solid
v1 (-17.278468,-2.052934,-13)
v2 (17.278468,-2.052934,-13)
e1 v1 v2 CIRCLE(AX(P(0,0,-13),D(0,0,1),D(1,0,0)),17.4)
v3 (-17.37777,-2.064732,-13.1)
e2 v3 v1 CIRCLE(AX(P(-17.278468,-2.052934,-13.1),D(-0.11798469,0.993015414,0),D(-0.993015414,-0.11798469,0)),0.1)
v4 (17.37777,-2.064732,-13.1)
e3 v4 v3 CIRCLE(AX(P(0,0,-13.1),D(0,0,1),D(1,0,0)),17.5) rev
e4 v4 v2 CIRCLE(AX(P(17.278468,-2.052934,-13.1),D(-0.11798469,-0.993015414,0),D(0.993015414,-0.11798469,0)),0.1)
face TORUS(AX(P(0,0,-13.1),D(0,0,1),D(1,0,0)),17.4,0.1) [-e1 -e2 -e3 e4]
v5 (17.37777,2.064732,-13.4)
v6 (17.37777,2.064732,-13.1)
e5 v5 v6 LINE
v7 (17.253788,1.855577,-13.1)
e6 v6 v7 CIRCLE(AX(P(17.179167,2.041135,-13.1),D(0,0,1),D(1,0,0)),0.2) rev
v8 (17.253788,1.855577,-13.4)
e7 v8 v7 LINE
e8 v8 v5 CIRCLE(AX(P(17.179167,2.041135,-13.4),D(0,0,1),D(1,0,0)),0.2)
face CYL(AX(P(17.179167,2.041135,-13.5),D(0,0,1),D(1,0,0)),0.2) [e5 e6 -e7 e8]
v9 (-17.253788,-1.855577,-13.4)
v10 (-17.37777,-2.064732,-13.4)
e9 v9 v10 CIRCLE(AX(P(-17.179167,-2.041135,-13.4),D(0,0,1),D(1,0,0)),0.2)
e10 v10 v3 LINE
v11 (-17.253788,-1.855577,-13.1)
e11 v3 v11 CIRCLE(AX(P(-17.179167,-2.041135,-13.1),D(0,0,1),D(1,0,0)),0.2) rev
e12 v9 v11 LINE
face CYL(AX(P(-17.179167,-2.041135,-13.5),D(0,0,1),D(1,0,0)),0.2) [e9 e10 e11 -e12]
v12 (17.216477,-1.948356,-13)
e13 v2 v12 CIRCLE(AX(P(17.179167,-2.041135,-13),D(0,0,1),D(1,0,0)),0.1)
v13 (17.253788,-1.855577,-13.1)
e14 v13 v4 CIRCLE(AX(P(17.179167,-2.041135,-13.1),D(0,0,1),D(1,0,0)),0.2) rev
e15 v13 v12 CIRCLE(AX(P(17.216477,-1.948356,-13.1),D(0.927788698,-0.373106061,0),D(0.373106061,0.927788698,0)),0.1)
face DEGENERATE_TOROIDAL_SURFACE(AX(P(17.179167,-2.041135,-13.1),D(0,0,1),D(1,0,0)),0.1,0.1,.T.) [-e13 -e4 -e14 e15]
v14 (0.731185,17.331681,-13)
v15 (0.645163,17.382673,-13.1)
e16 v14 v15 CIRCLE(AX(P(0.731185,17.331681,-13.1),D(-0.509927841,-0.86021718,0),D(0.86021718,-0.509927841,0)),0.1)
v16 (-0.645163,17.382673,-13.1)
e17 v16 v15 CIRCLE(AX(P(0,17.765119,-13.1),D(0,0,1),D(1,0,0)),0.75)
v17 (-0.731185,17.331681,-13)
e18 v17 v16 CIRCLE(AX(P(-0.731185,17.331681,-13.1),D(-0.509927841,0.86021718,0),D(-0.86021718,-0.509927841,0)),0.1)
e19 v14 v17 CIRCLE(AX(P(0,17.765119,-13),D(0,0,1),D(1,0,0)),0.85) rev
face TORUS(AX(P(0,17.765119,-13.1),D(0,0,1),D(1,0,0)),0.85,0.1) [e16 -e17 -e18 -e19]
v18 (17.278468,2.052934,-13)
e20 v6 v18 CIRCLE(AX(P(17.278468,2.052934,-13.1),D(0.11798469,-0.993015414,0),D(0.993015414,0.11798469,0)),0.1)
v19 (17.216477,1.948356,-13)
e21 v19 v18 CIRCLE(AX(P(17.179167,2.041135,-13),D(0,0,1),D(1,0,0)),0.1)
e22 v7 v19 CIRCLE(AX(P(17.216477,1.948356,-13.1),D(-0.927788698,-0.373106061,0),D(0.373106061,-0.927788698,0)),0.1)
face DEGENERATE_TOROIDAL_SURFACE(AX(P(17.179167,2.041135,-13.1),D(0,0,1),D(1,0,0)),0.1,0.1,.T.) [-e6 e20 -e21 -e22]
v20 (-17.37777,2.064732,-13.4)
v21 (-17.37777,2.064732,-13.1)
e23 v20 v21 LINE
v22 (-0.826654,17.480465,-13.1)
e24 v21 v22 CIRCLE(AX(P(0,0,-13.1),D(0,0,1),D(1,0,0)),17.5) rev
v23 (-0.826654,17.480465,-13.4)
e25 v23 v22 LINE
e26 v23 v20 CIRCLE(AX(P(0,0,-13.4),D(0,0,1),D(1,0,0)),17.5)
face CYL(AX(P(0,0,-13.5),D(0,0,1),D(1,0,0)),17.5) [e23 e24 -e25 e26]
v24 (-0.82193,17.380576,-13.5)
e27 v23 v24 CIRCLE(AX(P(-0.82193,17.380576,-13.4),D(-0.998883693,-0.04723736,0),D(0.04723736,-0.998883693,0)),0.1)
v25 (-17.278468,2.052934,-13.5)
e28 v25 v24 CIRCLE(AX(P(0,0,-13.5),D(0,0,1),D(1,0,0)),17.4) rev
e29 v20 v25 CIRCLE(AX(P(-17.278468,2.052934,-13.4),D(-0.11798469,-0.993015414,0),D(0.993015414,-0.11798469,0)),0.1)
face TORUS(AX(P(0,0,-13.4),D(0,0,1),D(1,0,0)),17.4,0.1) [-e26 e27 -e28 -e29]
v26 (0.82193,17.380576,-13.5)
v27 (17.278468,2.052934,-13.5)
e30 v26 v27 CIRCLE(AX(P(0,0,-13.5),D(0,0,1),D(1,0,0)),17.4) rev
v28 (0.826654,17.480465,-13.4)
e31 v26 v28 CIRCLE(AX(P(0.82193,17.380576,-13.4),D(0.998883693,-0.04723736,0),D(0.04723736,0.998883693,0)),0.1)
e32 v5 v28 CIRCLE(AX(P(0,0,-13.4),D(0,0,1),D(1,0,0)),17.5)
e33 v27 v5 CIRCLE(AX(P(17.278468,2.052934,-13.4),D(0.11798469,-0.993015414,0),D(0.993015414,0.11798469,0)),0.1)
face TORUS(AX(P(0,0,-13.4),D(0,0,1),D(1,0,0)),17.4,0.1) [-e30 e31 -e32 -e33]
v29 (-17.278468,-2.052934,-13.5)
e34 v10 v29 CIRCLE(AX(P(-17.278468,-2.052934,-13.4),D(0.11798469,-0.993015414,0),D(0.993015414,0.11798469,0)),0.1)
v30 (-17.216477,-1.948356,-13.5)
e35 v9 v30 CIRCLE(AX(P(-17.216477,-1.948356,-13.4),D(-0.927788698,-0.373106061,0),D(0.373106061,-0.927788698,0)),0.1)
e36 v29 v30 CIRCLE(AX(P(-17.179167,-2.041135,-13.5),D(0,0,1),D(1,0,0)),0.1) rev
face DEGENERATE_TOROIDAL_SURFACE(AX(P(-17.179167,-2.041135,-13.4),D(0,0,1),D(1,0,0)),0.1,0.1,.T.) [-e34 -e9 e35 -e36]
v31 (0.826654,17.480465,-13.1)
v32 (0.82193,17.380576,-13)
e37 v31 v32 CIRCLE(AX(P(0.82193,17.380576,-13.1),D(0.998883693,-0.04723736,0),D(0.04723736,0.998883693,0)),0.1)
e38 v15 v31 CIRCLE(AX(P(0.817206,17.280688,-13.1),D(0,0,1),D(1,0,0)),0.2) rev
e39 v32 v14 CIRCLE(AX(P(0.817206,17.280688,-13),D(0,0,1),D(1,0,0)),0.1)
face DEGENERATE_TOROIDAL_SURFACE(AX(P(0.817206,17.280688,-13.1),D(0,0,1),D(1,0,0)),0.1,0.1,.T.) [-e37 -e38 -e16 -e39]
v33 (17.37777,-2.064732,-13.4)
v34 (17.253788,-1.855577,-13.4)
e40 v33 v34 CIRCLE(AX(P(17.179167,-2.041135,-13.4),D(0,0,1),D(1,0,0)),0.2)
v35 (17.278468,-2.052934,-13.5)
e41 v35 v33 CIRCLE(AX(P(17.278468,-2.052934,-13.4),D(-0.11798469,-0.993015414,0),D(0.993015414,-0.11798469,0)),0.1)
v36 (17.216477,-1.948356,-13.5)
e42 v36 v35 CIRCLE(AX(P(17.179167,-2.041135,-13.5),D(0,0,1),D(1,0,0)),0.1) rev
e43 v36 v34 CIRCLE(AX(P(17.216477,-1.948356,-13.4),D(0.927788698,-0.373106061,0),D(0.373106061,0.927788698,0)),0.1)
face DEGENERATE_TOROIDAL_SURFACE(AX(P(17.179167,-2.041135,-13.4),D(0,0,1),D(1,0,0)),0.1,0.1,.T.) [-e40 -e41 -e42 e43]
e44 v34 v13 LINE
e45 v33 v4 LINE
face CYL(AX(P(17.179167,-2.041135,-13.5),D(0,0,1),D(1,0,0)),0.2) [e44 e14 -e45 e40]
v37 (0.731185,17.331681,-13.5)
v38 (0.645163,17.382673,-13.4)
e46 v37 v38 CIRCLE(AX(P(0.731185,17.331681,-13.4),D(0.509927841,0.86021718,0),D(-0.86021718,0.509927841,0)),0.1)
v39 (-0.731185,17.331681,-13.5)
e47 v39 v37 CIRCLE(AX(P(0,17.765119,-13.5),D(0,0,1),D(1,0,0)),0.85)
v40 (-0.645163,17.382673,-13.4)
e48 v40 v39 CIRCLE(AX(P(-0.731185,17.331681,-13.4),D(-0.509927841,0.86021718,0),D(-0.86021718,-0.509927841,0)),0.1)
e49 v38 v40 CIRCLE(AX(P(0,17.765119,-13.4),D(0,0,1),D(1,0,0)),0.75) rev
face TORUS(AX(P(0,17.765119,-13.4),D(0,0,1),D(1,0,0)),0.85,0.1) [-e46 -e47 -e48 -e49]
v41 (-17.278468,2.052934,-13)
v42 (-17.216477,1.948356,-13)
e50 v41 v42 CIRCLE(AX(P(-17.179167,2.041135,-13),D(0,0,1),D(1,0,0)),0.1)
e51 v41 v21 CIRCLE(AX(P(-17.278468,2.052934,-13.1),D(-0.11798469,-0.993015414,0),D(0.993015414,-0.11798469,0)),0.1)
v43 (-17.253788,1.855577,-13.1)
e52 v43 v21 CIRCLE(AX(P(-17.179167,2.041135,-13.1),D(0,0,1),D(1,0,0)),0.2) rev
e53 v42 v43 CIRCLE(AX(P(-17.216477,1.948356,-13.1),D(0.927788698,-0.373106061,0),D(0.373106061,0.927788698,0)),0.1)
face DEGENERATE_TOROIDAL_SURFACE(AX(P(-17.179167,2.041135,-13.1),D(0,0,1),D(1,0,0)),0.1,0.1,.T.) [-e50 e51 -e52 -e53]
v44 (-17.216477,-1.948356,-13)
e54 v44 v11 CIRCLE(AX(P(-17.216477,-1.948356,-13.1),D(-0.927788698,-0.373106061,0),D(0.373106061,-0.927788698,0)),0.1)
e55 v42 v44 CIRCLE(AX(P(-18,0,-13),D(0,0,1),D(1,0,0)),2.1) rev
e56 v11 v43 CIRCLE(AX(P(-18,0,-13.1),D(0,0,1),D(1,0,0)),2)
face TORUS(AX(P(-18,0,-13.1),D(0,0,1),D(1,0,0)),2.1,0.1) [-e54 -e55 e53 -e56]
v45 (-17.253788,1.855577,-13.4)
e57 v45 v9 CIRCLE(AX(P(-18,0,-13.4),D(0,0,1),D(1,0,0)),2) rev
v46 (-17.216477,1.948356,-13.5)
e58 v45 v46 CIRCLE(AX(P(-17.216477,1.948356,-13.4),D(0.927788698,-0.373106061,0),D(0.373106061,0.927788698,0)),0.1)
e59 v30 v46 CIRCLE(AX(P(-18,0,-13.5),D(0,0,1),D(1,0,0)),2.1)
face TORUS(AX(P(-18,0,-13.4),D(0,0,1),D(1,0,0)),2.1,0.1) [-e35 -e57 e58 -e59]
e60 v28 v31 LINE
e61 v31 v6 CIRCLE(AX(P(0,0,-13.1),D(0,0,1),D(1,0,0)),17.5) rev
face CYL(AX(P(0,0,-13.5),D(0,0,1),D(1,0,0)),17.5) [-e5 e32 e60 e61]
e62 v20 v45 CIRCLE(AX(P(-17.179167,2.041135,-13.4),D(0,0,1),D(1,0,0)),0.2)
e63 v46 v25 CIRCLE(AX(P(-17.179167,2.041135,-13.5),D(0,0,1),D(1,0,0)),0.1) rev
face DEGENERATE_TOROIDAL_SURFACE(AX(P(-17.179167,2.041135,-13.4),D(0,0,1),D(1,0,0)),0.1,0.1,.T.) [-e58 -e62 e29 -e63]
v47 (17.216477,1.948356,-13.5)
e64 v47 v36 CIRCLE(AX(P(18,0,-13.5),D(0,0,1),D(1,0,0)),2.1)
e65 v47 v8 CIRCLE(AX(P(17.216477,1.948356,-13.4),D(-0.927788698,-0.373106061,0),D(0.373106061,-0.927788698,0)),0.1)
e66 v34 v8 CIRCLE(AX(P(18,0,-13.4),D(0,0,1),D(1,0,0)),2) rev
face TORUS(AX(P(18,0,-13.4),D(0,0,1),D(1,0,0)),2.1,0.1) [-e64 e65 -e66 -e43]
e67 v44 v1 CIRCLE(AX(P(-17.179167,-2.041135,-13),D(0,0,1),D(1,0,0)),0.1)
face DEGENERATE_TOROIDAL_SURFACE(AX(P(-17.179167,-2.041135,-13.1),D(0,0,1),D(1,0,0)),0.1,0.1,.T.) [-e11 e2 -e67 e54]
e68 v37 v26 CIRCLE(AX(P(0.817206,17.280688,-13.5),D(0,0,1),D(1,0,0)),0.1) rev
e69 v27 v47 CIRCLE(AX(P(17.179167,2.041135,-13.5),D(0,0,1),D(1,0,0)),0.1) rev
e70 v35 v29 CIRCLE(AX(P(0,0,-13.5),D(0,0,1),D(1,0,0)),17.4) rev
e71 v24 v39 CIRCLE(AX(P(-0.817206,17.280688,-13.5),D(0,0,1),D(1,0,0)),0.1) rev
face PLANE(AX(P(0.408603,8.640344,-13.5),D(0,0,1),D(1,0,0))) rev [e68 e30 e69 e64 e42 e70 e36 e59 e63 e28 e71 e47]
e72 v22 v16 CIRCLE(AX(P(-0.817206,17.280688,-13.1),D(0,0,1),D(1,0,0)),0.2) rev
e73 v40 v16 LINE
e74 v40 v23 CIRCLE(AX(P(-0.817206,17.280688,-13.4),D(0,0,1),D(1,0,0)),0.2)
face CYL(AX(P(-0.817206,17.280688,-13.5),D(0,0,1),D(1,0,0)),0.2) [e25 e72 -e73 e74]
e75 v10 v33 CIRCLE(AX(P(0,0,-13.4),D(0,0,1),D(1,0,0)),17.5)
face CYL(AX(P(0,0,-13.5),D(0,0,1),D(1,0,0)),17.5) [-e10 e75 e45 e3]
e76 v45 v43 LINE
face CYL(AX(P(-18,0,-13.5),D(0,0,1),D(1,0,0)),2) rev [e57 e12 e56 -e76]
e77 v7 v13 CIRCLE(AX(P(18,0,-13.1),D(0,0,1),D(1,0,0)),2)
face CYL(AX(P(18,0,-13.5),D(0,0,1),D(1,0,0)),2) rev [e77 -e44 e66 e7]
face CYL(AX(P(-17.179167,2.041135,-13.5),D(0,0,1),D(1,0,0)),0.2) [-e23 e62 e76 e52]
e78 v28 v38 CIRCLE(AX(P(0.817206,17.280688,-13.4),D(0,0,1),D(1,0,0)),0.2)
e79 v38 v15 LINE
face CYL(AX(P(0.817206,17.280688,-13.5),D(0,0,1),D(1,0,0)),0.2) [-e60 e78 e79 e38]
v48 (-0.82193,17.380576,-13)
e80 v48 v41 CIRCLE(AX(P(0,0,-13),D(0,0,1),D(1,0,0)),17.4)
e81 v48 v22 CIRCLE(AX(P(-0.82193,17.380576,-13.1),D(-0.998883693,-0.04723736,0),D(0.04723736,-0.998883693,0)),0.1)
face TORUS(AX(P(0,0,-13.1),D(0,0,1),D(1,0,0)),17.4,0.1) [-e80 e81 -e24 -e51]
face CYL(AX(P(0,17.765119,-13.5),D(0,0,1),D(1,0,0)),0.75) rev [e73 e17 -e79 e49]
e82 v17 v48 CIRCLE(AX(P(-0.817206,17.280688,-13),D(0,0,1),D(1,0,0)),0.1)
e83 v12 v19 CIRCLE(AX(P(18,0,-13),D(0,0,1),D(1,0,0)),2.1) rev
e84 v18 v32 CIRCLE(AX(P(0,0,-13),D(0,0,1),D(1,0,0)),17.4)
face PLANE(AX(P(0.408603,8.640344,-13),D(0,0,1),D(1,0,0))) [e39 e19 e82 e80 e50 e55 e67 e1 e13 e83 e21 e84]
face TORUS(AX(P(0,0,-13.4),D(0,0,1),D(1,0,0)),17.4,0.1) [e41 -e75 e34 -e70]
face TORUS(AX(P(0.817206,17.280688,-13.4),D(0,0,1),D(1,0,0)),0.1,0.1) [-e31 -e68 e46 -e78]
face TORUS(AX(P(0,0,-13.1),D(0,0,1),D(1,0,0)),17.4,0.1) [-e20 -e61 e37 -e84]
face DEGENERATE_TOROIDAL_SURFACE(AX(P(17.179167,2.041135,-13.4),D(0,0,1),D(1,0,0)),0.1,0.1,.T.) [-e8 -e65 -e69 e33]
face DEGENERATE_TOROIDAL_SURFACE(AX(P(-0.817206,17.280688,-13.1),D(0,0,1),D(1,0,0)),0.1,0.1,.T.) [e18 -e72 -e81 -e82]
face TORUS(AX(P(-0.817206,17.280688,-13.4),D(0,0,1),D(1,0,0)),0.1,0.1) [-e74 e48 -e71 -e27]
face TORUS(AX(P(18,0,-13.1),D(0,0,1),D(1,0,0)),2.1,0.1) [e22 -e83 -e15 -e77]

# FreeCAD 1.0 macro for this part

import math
import FreeCAD as App
import Part
import Sketcher

V = App.Vector


def edges_at(feature, points):
    """Names of the edges that pass closest to the given points."""
    edges = feature.Shape.Edges
    near = lambda p: min(range(len(edges)), key=lambda i: edges[i].distToShape(Part.Vertex(*p))[0])
    return sorted({f"Edge{near(p) + 1}" for p in points})

doc = App.newDocument("Part")
body = doc.addObject("PartDesign::Body", "Body")

# Sketch on XY plane
sketch1 = body.newObject("Sketcher::SketchObject", "Sketch")
sketch1.AttachmentSupport = (doc.getObject("XY_Plane"), [""])
sketch1.MapMode = "FlatFace"
sketch1.AttachmentOffset = App.Placement(V(0, 0, -13), App.Rotation())
sketch1.addGeometry([
    Part.ArcOfCircle(Part.Circle(V(0.817206, 17.280688, 0), V(0, 0, 1), 0.2), math.radians(87.292491), math.radians(149.340976)),  # 0
    Part.ArcOfCircle(Part.Circle(V(0, 17.765119, 0), V(0, 0, 1), 0.75), math.radians(-149.340977), math.radians(-30.659023)),  # 1
    Part.ArcOfCircle(Part.Circle(V(-0.817206, 17.280688, 0), V(0, 0, 1), 0.2), math.radians(30.659024), math.radians(92.707509)),  # 2
    Part.ArcOfCircle(Part.Circle(V(0, 0, 0), V(0, 0, 1), 17.5), math.radians(92.707509), math.radians(173.224192)),  # 3
    Part.ArcOfCircle(Part.Circle(V(-17.179167, 2.041135, 0), V(0, 0, 1), 0.2), math.radians(173.224192), math.radians(248.092696)),  # 4
    Part.ArcOfCircle(Part.Circle(V(-18, 0, 0), V(0, 0, 1), 2), math.radians(-68.092696), math.radians(68.092696)),  # 5
    Part.ArcOfCircle(Part.Circle(V(-17.179167, -2.041135, 0), V(0, 0, 1), 0.2), math.radians(111.907304), math.radians(186.775808)),  # 6
    Part.ArcOfCircle(Part.Circle(V(0, 0, 0), V(0, 0, 1), 17.5), math.radians(-173.224192), math.radians(-6.775808)),  # 7
    Part.ArcOfCircle(Part.Circle(V(17.179167, -2.041135, 0), V(0, 0, 1), 0.2), math.radians(-6.775808), math.radians(68.092696)),  # 8
    Part.ArcOfCircle(Part.Circle(V(18, 0, 0), V(0, 0, 1), 2), math.radians(111.907304), math.radians(248.092696)),  # 9
    Part.ArcOfCircle(Part.Circle(V(17.179167, 2.041135, 0), V(0, 0, 1), 0.2), math.radians(-68.092696), math.radians(6.775808)),  # 10
    Part.ArcOfCircle(Part.Circle(V(0, 0, 0), V(0, 0, 1), 17.5), math.radians(6.775808), math.radians(87.292491)),  # 11
], False)
sketch1.addConstraint([
    Sketcher.Constraint("Tangent", 0, 2, 1, 2),
    Sketcher.Constraint("Tangent", 1, 1, 2, 1),
    Sketcher.Constraint("Tangent", 2, 2, 3, 1),
    Sketcher.Constraint("Tangent", 3, 2, 4, 1),
    Sketcher.Constraint("Tangent", 4, 2, 5, 2),
    Sketcher.Constraint("Tangent", 5, 1, 6, 1),
    Sketcher.Constraint("Tangent", 6, 2, 7, 1),
    Sketcher.Constraint("Tangent", 7, 2, 8, 1),
    Sketcher.Constraint("Tangent", 8, 2, 9, 2),
    Sketcher.Constraint("Tangent", 9, 1, 10, 1),
    Sketcher.Constraint("Tangent", 10, 2, 11, 1),
    Sketcher.Constraint("Tangent", 11, 2, 0, 1),
    Sketcher.Constraint("Coincident", 3, 3, -1, 1),
    Sketcher.Constraint("Coincident", 7, 3, -1, 1),
    Sketcher.Constraint("Coincident", 11, 3, -1, 1),
    Sketcher.Constraint("Equal", 0, 2),
    Sketcher.Constraint("Equal", 2, 4),
    Sketcher.Constraint("Equal", 4, 6),
    Sketcher.Constraint("Equal", 3, 7),
    Sketcher.Constraint("Equal", 6, 8),
    Sketcher.Constraint("Equal", 5, 9),
    Sketcher.Constraint("Equal", 8, 10),
    Sketcher.Constraint("Equal", 7, 11),
    Sketcher.Constraint("Symmetric", 5, 3, 9, 3, -1, 1),
    Sketcher.Constraint("PointOnObject", 1, 3, -2),
    Sketcher.Constraint("PointOnObject", 5, 3, -1),
    Sketcher.Constraint("Radius", 5, 2.0),
    Sketcher.Constraint("Radius", 0, 0.2),
    Sketcher.Constraint("Radius", 3, 17.5),
    Sketcher.Constraint("Radius", 1, 0.75),
    Sketcher.Constraint("DistanceX", 5, 3, -1, 1, 18.0),
    Sketcher.Constraint("DistanceY", -1, 1, 1, 3, 17.765119),
])
pad1 = body.newObject("PartDesign::Pad", "Pad")
pad1.Profile = sketch1
pad1.Length = 0.5
pad1.Reversed = True
doc.recompute()

fillet = body.newObject("PartDesign::Fillet", "Fillet")
fillet.Base = (pad1, edges_at(pad1, [
    (0, 17.015, -13.5),
    (-0.722, 17.457, -13.5),
    (-11.927, 12.806, -13.5),
    (-17.351, 1.939, -13.5),
    (-16, 0, -13.5),
    (-17.351, -1.939, -13.5),
    (0, -17.5, -13.5),
    (17.351, -1.939, -13.5),
    (16, 0, -13.5),
    (17.351, 1.939, -13.5),
    (11.927, 12.806, -13.5),
    (0.722, 17.457, -13.5),
]))
fillet.Radius = 0.1
doc.recompute()

fillet2 = body.newObject("PartDesign::Fillet", "Fillet001")
fillet2.Base = (fillet, edges_at(fillet, [
    (17.351, 1.939, -13),
    (16, 0, -13),
    (17.351, -1.939, -13),
    (0, -17.5, -13),
    (-17.351, -1.939, -13),
    (-16, 0, -13),
    (-17.351, 1.939, -13),
    (-11.927, 12.806, -13),
    (-0.722, 17.457, -13),
    (0, 17.015, -13),
    (0.722, 17.457, -13),
    (11.927, 12.806, -13),
]))
fillet2.Radius = 0.1

doc.recompute()
